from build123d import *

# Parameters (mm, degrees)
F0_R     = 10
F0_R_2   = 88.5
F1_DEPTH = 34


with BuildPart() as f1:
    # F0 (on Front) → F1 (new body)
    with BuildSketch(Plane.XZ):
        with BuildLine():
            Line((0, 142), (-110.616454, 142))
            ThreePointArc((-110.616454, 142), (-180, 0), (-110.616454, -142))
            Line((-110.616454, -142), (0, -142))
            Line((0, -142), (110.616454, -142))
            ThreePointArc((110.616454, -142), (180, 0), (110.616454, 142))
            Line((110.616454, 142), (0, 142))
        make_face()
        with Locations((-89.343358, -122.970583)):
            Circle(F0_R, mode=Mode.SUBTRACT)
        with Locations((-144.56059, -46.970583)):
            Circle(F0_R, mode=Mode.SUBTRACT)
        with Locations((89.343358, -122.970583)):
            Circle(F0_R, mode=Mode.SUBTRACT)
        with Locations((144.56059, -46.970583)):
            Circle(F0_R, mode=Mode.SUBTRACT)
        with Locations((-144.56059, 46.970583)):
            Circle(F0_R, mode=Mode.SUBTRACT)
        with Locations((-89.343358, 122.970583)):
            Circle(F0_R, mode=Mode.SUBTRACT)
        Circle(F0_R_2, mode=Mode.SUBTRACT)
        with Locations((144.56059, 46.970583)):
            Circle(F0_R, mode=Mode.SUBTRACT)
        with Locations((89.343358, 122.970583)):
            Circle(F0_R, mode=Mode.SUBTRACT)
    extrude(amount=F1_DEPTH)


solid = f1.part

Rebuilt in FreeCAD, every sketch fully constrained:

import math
import FreeCAD as App
import Part
import Sketcher

doc = App.newDocument("Part")
body = doc.addObject("PartDesign::Body", "Body")

# Sketch on XZ plane
sketch1 = body.newObject("Sketcher::SketchObject", "Sketch")
sketch1.AttachmentSupport = (doc.getObject("XZ_Plane"), [""])
sketch1.MapMode = "FlatFace"
sketch1.addGeometry(Part.ArcOfCircle(Part.Circle(App.Vector(-0.000001, 0, 0), App.Vector(0, 0, 1), 179.999999), math.radians(127.918202), math.radians(232.081798)), False)
sketch1.addGeometry(Part.LineSegment(App.Vector(-110.616454, -142, 0), App.Vector(110.616454, -142, 0)), False)
sketch1.addGeometry(Part.ArcOfCircle(Part.Circle(App.Vector(0.000001, 0, 0), App.Vector(0, 0, 1), 179.999999), math.radians(-52.081798), math.radians(52.081798)), False)
sketch1.addGeometry(Part.LineSegment(App.Vector(110.616454, 142, 0), App.Vector(-110.616454, 142, 0)), False)
sketch1.addGeometry(Part.Circle(App.Vector(-89.343358, -122.970583, 0), App.Vector(0, 0, 1), 10), False)
sketch1.addGeometry(Part.Circle(App.Vector(-144.56059, -46.970583, 0), App.Vector(0, 0, 1), 10), False)
sketch1.addGeometry(Part.Circle(App.Vector(89.343358, -122.970583, 0), App.Vector(0, 0, 1), 10), False)
sketch1.addGeometry(Part.Circle(App.Vector(144.56059, -46.970583, 0), App.Vector(0, 0, 1), 10), False)
sketch1.addGeometry(Part.Circle(App.Vector(-144.56059, 46.970583, 0), App.Vector(0, 0, 1), 10), False)
sketch1.addGeometry(Part.Circle(App.Vector(-89.343358, 122.970583, 0), App.Vector(0, 0, 1), 10), False)
sketch1.addGeometry(Part.Circle(App.Vector(0, 0, 0), App.Vector(0, 0, 1), 88.5), False)
sketch1.addGeometry(Part.Circle(App.Vector(144.56059, 46.970583, 0), App.Vector(0, 0, 1), 10), False)
sketch1.addGeometry(Part.Circle(App.Vector(89.343358, 122.970583, 0), App.Vector(0, 0, 1), 10), False)
sketch1.addConstraint(Sketcher.Constraint("Coincident", 0, 2, 1, 1))
sketch1.addConstraint(Sketcher.Constraint("Coincident", 1, 2, 2, 1))
sketch1.addConstraint(Sketcher.Constraint("Coincident", 2, 2, 3, 1))
sketch1.addConstraint(Sketcher.Constraint("Coincident", 3, 2, 0, 1))
sketch1.addConstraint(Sketcher.Constraint("Horizontal", 1))
sketch1.addConstraint(Sketcher.Constraint("Horizontal", 3))
sketch1.addConstraint(Sketcher.Constraint("Coincident", 0, 3, -1, 1))
sketch1.addConstraint(Sketcher.Constraint("Coincident", 2, 3, -1, 1))
sketch1.addConstraint(Sketcher.Constraint("Coincident", 10, 3, -1, 1))
sketch1.addConstraint(Sketcher.Constraint("Equal", 0, 2))
sketch1.addConstraint(Sketcher.Constraint("Equal", 4, 5))
sketch1.addConstraint(Sketcher.Constraint("Equal", 5, 6))
sketch1.addConstraint(Sketcher.Constraint("Equal", 6, 7))
sketch1.addConstraint(Sketcher.Constraint("Equal", 7, 8))
sketch1.addConstraint(Sketcher.Constraint("Equal", 8, 9))
sketch1.addConstraint(Sketcher.Constraint("Equal", 9, 11))
sketch1.addConstraint(Sketcher.Constraint("Equal", 11, 12))
sketch1.addConstraint(Sketcher.Constraint("Symmetric", 7, 3, 8, 3, -1, 1))
sketch1.addConstraint(Sketcher.Constraint("Symmetric", 6, 3, 9, 3, -1, 1))
sketch1.addConstraint(Sketcher.Constraint("Symmetric", 5, 3, 11, 3, -1, 1))
sketch1.addConstraint(Sketcher.Constraint("Symmetric", 4, 3, 12, 3, -1, 1))
sketch1.addConstraint(Sketcher.Constraint("Symmetric", 4, 3, 6, 3, -2))
sketch1.addConstraint(Sketcher.Constraint("Symmetric", 5, 3, 7, 3, -2))
sketch1.addConstraint(Sketcher.Constraint("Vertical", 1, 2, 2, 2))
sketch1.addConstraint(Sketcher.Constraint("Diameter", 4, 20.0))
sketch1.addConstraint(Sketcher.Constraint("Diameter", 10, 177.0))
sketch1.addConstraint(Sketcher.Constraint("Radius", 0, 179.999999))
sketch1.addConstraint(Sketcher.Constraint("DistanceY", 0, 2, -1, 1, 142.0))
sketch1.addConstraint(Sketcher.Constraint("DistanceY", 4, 3, 5, 3, 76.0))
sketch1.addConstraint(Sketcher.Constraint("DistanceX", 5, 3, -1, 1, 144.56059))
sketch1.addConstraint(Sketcher.Constraint("DistanceX", 4, 3, 2, 3, 89.343359))
sketch1.addConstraint(Sketcher.Constraint("DistanceY", 4, 3, -1, 1, 122.970583))
pad1 = body.newObject("PartDesign::Pad", "Pad")
pad1.Profile = sketch1
pad1.Length = 34

doc.recompute()
